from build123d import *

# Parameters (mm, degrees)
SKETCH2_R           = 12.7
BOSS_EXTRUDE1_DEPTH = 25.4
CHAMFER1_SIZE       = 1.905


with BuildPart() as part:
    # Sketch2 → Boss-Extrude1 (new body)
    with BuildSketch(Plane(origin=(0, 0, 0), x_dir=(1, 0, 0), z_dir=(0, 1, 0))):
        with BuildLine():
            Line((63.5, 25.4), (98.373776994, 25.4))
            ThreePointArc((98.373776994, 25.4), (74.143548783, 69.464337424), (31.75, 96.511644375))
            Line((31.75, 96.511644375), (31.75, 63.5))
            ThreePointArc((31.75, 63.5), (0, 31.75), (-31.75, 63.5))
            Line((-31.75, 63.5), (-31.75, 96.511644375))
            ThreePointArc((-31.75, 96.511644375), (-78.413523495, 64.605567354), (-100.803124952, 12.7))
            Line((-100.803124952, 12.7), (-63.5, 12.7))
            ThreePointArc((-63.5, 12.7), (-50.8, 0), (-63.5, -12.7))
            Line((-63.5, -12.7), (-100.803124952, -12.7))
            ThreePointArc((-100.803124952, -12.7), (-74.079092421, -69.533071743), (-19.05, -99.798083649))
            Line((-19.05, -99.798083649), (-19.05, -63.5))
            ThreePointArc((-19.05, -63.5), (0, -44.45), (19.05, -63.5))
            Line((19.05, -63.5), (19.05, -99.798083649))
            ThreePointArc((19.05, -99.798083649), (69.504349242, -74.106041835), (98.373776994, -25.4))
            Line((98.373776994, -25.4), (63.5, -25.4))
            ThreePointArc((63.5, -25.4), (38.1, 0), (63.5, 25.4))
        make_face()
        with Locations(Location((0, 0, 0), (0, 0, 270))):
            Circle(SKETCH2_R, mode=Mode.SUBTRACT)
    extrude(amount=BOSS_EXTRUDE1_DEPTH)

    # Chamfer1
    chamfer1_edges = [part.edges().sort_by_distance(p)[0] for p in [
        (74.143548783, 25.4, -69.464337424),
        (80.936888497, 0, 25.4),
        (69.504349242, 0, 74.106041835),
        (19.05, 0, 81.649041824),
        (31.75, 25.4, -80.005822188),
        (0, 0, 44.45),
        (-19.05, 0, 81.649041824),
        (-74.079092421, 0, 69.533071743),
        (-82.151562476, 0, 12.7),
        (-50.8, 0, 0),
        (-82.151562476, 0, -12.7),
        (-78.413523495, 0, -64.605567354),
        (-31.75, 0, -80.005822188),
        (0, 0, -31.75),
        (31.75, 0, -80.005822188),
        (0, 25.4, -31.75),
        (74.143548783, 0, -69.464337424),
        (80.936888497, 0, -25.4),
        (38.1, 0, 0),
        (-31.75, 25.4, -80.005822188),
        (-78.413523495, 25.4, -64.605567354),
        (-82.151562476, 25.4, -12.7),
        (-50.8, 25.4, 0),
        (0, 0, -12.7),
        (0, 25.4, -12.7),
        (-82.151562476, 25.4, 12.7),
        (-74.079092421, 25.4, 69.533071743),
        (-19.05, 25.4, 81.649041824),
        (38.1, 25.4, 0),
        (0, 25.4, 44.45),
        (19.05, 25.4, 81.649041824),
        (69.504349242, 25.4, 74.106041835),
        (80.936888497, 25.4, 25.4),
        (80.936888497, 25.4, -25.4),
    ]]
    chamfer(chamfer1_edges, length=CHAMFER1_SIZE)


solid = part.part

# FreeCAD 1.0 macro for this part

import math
import FreeCAD as App
import Part
import Sketcher
Q = App.Units.Quantity


def edges_at(feature, points):
    """Names of the edges that pass closest to the given points."""
    edges = feature.Shape.Edges
    near = lambda p: min(range(len(edges)), key=lambda i: edges[i].distToShape(Part.Vertex(*p))[0])
    return sorted({f"Edge{near(p) + 1}" for p in points})

doc = App.newDocument("Part")
params = doc.addObject("Spreadsheet::Sheet", "Params")
for row, (alias, value) in enumerate([
    ("sketch1_diameter", "1 in"),
    ("sketch1_radius", "4 in"),
    ("sketch1_radius2", "1 in"),
    ("sketch1_radius3", "1.25 in"),
    ("sketch1_radius4", "0.75 in"),
    ("pad1_length", "1 in"),
    ("chamfer_size", "0.075 in"),
], start=1):
    params.set(f"A{row}", alias)
    params.set(f"B{row}", "=" + value)
    params.setAlias(f"B{row}", alias)

body = doc.addObject("PartDesign::Body", "Body")

# Sketch on XZ plane
sketch1 = body.newObject("Sketcher::SketchObject", "Sketch")
sketch1.AttachmentSupport = (doc.getObject("XZ_Plane"), [""])
sketch1.MapMode = "FlatFace"
sketch1.addGeometry(Part.LineSegment(App.Vector(64, -25, 0), App.Vector(98, -25, 0)), False)
sketch1.addGeometry(Part.ArcOfCircle(Part.Circle(App.Vector(0, 0, 0), App.Vector(0, 0, 1), 102), math.radians(-72), math.radians(-14)), False)
sketch1.addGeometry(Part.LineSegment(App.Vector(32, -97, 0), App.Vector(32, -64, 0)), False)
sketch1.addGeometry(Part.ArcOfCircle(Part.Circle(App.Vector(0, -64, 0), App.Vector(0, 0, 1), 32), math.radians(0), math.radians(180)), False)
sketch1.addGeometry(Part.LineSegment(App.Vector(-32, -64, 0), App.Vector(-32, -97, 0)), False)
sketch1.addGeometry(Part.ArcOfCircle(Part.Circle(App.Vector(0, 0, 0), App.Vector(0, 0, 1), 102), math.radians(-173), math.radians(-108)), False)
sketch1.addGeometry(Part.LineSegment(App.Vector(-101, -13, 0), App.Vector(-64, -13, 0)), False)
sketch1.addGeometry(Part.ArcOfCircle(Part.Circle(App.Vector(-64, 0, 0), App.Vector(0, 0, 1), 13), math.radians(-90), math.radians(90)), False)
sketch1.addGeometry(Part.LineSegment(App.Vector(-64, 13, 0), App.Vector(-101, 13, 0)), False)
sketch1.addGeometry(Part.ArcOfCircle(Part.Circle(App.Vector(0, 0, 0), App.Vector(0, 0, 1), 102), math.radians(101), math.radians(173)), False)
sketch1.addGeometry(Part.LineSegment(App.Vector(-19, 100, 0), App.Vector(-19, 64, 0)), False)
sketch1.addGeometry(Part.ArcOfCircle(Part.Circle(App.Vector(0, 64, 0), App.Vector(0, 0, 1), 19), math.radians(180), math.radians(360)), False)
sketch1.addGeometry(Part.LineSegment(App.Vector(19, 64, 0), App.Vector(19, 100, 0)), False)
sketch1.addGeometry(Part.ArcOfCircle(Part.Circle(App.Vector(0, 0, 0), App.Vector(0, 0, 1), 102), math.radians(14), math.radians(79)), False)
sketch1.addGeometry(Part.LineSegment(App.Vector(98, 25, 0), App.Vector(64, 25, 0)), False)
sketch1.addGeometry(Part.ArcOfCircle(Part.Circle(App.Vector(64, 0, 0), App.Vector(0, 0, 1), 25), math.radians(90), math.radians(270)), False)
sketch1.addGeometry(Part.Circle(App.Vector(0, 0, 0), App.Vector(0, 0, 1), 13), False)
sketch1.addConstraint(Sketcher.Constraint("Coincident", 0, 2, 1, 2))
sketch1.addConstraint(Sketcher.Constraint("Coincident", 1, 1, 2, 1))
sketch1.addConstraint(Sketcher.Constraint("Tangent", 2, 2, 3, 1))
sketch1.addConstraint(Sketcher.Constraint("Tangent", 3, 2, 4, 1))
sketch1.addConstraint(Sketcher.Constraint("Coincident", 4, 2, 5, 2))
sketch1.addConstraint(Sketcher.Constraint("Coincident", 5, 1, 6, 1))
sketch1.addConstraint(Sketcher.Constraint("Tangent", 6, 2, 7, 1))
sketch1.addConstraint(Sketcher.Constraint("Tangent", 7, 2, 8, 1))
sketch1.addConstraint(Sketcher.Constraint("Coincident", 8, 2, 9, 2))
sketch1.addConstraint(Sketcher.Constraint("Coincident", 9, 1, 10, 1))
sketch1.addConstraint(Sketcher.Constraint("Tangent", 10, 2, 11, 1))
sketch1.addConstraint(Sketcher.Constraint("Tangent", 11, 2, 12, 1))
sketch1.addConstraint(Sketcher.Constraint("Coincident", 12, 2, 13, 2))
sketch1.addConstraint(Sketcher.Constraint("Coincident", 13, 1, 14, 1))
sketch1.addConstraint(Sketcher.Constraint("Tangent", 14, 2, 15, 1))
sketch1.addConstraint(Sketcher.Constraint("Tangent", 15, 2, 0, 1))
sketch1.addConstraint(Sketcher.Constraint("Horizontal", 0))
sketch1.addConstraint(Sketcher.Constraint("Vertical", 2))
sketch1.addConstraint(Sketcher.Constraint("Vertical", 4))
sketch1.addConstraint(Sketcher.Constraint("Horizontal", 6))
sketch1.addConstraint(Sketcher.Constraint("Horizontal", 8))
sketch1.addConstraint(Sketcher.Constraint("Vertical", 10))
sketch1.addConstraint(Sketcher.Constraint("Vertical", 12))
sketch1.addConstraint(Sketcher.Constraint("Horizontal", 14))
sketch1.addConstraint(Sketcher.Constraint("Coincident", 1, 3, -1, 1))
sketch1.addConstraint(Sketcher.Constraint("Coincident", 5, 3, -1, 1))
sketch1.addConstraint(Sketcher.Constraint("Coincident", 9, 3, -1, 1))
sketch1.addConstraint(Sketcher.Constraint("Coincident", 13, 3, -1, 1))
sketch1.addConstraint(Sketcher.Constraint("Coincident", 16, 3, -1, 1))
sketch1.addConstraint(Sketcher.Constraint("Equal", 1, 5))
sketch1.addConstraint(Sketcher.Constraint("Equal", 5, 9))
sketch1.addConstraint(Sketcher.Constraint("Equal", 9, 13))
sketch1.addConstraint(Sketcher.Constraint("Equal", 7, 16))
sketch1.addConstraint(Sketcher.Constraint("Symmetric", 3, 3, 11, 3, -1, 1))
sketch1.addConstraint(Sketcher.Constraint("Symmetric", 7, 3, 15, 3, -1, 1))
sketch1.addConstraint(Sketcher.Constraint("PointOnObject", 3, 3, -2))
sketch1.addConstraint(Sketcher.Constraint("PointOnObject", 7, 3, -1))
sketch1.addConstraint(Sketcher.Constraint("Diameter", 16, Q("1 in")))
sketch1.addConstraint(Sketcher.Constraint("Radius", 1, Q("4 in")))
sketch1.addConstraint(Sketcher.Constraint("Radius", 15, Q("1 in")))
sketch1.addConstraint(Sketcher.Constraint("Radius", 3, Q("1.25 in")))
sketch1.addConstraint(Sketcher.Constraint("Radius", 11, Q("0.75 in")))
sketch1.addConstraint(Sketcher.Constraint("DistanceY", 3, 3, 11, 3, Q("5 in")))
sketch1.addConstraint(Sketcher.Constraint("DistanceX", 7, 3, -1, 1, Q("2.5 in")))
sketch1.setExpression("Constraints[37]", "Params.sketch1_diameter")
sketch1.setExpression("Constraints[38]", "Params.sketch1_radius")
sketch1.setExpression("Constraints[39]", "Params.sketch1_radius2")
sketch1.setExpression("Constraints[40]", "Params.sketch1_radius3")
sketch1.setExpression("Constraints[41]", "Params.sketch1_radius4")
pad1 = body.newObject("PartDesign::Pad", "Pad")
pad1.Profile = sketch1
pad1.setExpression("Length", "Params.pad1_length")
pad1.Reversed = True
doc.recompute()

chamfer = body.newObject("PartDesign::Chamfer", "Chamfer")
chamfer.Base = (pad1, edges_at(pad1, [
    (74.144, 25.4, -69.464),
    (80.937, 0, 25.4),
    (69.504, 0, 74.106),
    (19.05, 0, 81.649),
    (31.75, 25.4, -80.006),
    (0, 0, 44.45),
    (-19.05, 0, 81.649),
    (-74.079, 0, 69.533),
    (-82.152, 0, 12.7),
    (-50.8, 0, 0),
    (-82.152, 0, -12.7),
    (-78.414, 0, -64.606),
    (-31.75, 0, -80.006),
    (0, 0, -31.75),
    (31.75, 0, -80.006),
    (0, 25.4, -31.75),
    (74.144, 0, -69.464),
    (80.937, 0, -25.4),
    (38.1, 0, 0),
    (-31.75, 25.4, -80.006),
    (-78.414, 25.4, -64.606),
    (-82.152, 25.4, -12.7),
    (-50.8, 25.4, 0),
    (0, 0, -12.7),
    (0, 25.4, -12.7),
    (-82.152, 25.4, 12.7),
    (-74.079, 25.4, 69.533),
    (-19.05, 25.4, 81.649),
    (38.1, 25.4, 0),
    (0, 25.4, 44.45),
    (19.05, 25.4, 81.649),
    (69.504, 25.4, 74.106),
    (80.937, 25.4, 25.4),
    (80.937, 25.4, -25.4),
]))
chamfer.setExpression("Size", "Params.chamfer_size")

doc.recompute()
